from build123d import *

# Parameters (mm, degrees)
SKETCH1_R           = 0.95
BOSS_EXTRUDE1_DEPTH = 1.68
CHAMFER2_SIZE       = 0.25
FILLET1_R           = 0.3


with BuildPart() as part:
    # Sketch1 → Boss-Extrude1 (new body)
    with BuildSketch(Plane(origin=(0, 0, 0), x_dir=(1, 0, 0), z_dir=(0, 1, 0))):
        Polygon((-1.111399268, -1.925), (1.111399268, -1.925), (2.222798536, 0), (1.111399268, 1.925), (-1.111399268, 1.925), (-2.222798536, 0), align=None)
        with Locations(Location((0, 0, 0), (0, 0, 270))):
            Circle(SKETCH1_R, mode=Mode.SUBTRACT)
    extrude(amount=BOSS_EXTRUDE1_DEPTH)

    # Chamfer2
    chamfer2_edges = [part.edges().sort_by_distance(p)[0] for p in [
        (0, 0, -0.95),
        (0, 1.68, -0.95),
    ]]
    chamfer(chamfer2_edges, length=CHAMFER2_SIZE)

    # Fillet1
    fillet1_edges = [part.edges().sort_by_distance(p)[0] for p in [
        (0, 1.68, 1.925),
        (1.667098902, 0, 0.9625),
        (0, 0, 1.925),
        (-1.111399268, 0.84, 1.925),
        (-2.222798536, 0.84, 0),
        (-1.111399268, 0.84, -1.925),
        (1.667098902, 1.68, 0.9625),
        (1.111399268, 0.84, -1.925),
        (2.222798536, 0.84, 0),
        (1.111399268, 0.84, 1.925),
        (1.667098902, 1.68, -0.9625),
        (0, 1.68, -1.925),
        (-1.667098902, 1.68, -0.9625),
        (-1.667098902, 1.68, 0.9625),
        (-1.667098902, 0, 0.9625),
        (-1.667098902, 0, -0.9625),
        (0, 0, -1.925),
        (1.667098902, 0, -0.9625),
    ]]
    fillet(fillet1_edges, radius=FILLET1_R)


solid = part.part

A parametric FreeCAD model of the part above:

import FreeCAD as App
import Part
import Sketcher

V = App.Vector
Q = App.Units.Quantity


def edges_at(feature, points):
    """Names of the edges that pass closest to the given points."""
    edges = feature.Shape.Edges
    near = lambda p: min(range(len(edges)), key=lambda i: edges[i].distToShape(Part.Vertex(*p))[0])
    return sorted({f"Edge{near(p) + 1}" for p in points})


def add_polygon(sketch, points):
    """Adds a closed chain of lines whose ends are joined by coincident constraints."""
    first, n = sketch.GeometryCount, len(points)
    for a, b in zip(points, points[1:] + points[:1]):
        sketch.addGeometry(Part.LineSegment(App.Vector(*a, 0), App.Vector(*b, 0)), False)
    for i in range(n):
        sketch.addConstraint(Sketcher.Constraint("Coincident", first + i, 2, first + (i + 1) % n, 1))

doc = App.newDocument("Part")
body = doc.addObject("PartDesign::Body", "Body")

# Sketch on XZ plane
sketch1 = body.newObject("Sketcher::SketchObject", "Sketch")
sketch1.AttachmentSupport = (doc.getObject("XZ_Plane"), [""])
sketch1.MapMode = "FlatFace"
add_polygon(sketch1, [(-1.1, 1.9), (1.1, 1.9), (2.2, 0), (1.1, -1.9), (-1.1, -1.9), (-2.2, 0)])  # lines 0-5
sketch1.addGeometry(Part.Circle(V(0, 0, 0), V(0, 0, 1), 0.9), False)  # 6
sketch1.addConstraint(Sketcher.Constraint("Horizontal", 0))
sketch1.addConstraint(Sketcher.Constraint("Horizontal", 3))
sketch1.addConstraint(Sketcher.Constraint("Coincident", 6, 3, -1, 1))
sketch1.addConstraint(Sketcher.Constraint("Symmetric", 0, 2, 3, 2, -1, 1))
sketch1.addConstraint(Sketcher.Constraint("Symmetric", 1, 2, 4, 2, -1, 1))
sketch1.addConstraint(Sketcher.Constraint("PointOnObject", 1, 2, -1))
sketch1.addConstraint(Sketcher.Constraint("Parallel", 2, 5))
sketch1.addConstraint(Sketcher.Constraint("Vertical", 0, 2, 2, 2))
sketch1.addConstraint(Sketcher.Constraint("Diameter", 6, 1.9))
sketch1.addConstraint(Sketcher.Constraint("Angle", 1, Q("-60 deg")))
sketch1.addConstraint(Sketcher.Constraint("DistanceY", 2, 2, 0, 2, 3.85))
sketch1.addConstraint(Sketcher.Constraint("DistanceX", 0, 1, 0, 2, 2.222799))
pad1 = body.newObject("PartDesign::Pad", "Pad")
pad1.Profile = sketch1
pad1.Length = 1.68
pad1.Reversed = True
doc.recompute()

chamfer = body.newObject("PartDesign::Chamfer", "Chamfer")
chamfer.Base = (pad1, edges_at(pad1, [(0, 0, -0.95), (0, 1.68, -0.95)]))
chamfer.Size = 0.25
doc.recompute()

fillet = body.newObject("PartDesign::Fillet", "Fillet")
fillet.Base = (chamfer, edges_at(chamfer, [
    (0, 1.68, 1.925),
    (1.667, 0, 0.963),
    (0, 0, 1.925),
    (-1.111, 0.84, 1.925),
    (-2.223, 0.84, 0),
    (-1.111, 0.84, -1.925),
    (1.667, 1.68, 0.963),
    (1.111, 0.84, -1.925),
    (2.223, 0.84, 0),
    (1.111, 0.84, 1.925),
    (1.667, 1.68, -0.963),
    (0, 1.68, -1.925),
    (-1.667, 1.68, -0.963),
    (-1.667, 1.68, 0.963),
    (-1.667, 0, 0.963),
    (-1.667, 0, -0.963),
    (0, 0, -1.925),
    (1.667, 0, -0.963),
]))
fillet.Radius = 0.3

doc.recompute()
